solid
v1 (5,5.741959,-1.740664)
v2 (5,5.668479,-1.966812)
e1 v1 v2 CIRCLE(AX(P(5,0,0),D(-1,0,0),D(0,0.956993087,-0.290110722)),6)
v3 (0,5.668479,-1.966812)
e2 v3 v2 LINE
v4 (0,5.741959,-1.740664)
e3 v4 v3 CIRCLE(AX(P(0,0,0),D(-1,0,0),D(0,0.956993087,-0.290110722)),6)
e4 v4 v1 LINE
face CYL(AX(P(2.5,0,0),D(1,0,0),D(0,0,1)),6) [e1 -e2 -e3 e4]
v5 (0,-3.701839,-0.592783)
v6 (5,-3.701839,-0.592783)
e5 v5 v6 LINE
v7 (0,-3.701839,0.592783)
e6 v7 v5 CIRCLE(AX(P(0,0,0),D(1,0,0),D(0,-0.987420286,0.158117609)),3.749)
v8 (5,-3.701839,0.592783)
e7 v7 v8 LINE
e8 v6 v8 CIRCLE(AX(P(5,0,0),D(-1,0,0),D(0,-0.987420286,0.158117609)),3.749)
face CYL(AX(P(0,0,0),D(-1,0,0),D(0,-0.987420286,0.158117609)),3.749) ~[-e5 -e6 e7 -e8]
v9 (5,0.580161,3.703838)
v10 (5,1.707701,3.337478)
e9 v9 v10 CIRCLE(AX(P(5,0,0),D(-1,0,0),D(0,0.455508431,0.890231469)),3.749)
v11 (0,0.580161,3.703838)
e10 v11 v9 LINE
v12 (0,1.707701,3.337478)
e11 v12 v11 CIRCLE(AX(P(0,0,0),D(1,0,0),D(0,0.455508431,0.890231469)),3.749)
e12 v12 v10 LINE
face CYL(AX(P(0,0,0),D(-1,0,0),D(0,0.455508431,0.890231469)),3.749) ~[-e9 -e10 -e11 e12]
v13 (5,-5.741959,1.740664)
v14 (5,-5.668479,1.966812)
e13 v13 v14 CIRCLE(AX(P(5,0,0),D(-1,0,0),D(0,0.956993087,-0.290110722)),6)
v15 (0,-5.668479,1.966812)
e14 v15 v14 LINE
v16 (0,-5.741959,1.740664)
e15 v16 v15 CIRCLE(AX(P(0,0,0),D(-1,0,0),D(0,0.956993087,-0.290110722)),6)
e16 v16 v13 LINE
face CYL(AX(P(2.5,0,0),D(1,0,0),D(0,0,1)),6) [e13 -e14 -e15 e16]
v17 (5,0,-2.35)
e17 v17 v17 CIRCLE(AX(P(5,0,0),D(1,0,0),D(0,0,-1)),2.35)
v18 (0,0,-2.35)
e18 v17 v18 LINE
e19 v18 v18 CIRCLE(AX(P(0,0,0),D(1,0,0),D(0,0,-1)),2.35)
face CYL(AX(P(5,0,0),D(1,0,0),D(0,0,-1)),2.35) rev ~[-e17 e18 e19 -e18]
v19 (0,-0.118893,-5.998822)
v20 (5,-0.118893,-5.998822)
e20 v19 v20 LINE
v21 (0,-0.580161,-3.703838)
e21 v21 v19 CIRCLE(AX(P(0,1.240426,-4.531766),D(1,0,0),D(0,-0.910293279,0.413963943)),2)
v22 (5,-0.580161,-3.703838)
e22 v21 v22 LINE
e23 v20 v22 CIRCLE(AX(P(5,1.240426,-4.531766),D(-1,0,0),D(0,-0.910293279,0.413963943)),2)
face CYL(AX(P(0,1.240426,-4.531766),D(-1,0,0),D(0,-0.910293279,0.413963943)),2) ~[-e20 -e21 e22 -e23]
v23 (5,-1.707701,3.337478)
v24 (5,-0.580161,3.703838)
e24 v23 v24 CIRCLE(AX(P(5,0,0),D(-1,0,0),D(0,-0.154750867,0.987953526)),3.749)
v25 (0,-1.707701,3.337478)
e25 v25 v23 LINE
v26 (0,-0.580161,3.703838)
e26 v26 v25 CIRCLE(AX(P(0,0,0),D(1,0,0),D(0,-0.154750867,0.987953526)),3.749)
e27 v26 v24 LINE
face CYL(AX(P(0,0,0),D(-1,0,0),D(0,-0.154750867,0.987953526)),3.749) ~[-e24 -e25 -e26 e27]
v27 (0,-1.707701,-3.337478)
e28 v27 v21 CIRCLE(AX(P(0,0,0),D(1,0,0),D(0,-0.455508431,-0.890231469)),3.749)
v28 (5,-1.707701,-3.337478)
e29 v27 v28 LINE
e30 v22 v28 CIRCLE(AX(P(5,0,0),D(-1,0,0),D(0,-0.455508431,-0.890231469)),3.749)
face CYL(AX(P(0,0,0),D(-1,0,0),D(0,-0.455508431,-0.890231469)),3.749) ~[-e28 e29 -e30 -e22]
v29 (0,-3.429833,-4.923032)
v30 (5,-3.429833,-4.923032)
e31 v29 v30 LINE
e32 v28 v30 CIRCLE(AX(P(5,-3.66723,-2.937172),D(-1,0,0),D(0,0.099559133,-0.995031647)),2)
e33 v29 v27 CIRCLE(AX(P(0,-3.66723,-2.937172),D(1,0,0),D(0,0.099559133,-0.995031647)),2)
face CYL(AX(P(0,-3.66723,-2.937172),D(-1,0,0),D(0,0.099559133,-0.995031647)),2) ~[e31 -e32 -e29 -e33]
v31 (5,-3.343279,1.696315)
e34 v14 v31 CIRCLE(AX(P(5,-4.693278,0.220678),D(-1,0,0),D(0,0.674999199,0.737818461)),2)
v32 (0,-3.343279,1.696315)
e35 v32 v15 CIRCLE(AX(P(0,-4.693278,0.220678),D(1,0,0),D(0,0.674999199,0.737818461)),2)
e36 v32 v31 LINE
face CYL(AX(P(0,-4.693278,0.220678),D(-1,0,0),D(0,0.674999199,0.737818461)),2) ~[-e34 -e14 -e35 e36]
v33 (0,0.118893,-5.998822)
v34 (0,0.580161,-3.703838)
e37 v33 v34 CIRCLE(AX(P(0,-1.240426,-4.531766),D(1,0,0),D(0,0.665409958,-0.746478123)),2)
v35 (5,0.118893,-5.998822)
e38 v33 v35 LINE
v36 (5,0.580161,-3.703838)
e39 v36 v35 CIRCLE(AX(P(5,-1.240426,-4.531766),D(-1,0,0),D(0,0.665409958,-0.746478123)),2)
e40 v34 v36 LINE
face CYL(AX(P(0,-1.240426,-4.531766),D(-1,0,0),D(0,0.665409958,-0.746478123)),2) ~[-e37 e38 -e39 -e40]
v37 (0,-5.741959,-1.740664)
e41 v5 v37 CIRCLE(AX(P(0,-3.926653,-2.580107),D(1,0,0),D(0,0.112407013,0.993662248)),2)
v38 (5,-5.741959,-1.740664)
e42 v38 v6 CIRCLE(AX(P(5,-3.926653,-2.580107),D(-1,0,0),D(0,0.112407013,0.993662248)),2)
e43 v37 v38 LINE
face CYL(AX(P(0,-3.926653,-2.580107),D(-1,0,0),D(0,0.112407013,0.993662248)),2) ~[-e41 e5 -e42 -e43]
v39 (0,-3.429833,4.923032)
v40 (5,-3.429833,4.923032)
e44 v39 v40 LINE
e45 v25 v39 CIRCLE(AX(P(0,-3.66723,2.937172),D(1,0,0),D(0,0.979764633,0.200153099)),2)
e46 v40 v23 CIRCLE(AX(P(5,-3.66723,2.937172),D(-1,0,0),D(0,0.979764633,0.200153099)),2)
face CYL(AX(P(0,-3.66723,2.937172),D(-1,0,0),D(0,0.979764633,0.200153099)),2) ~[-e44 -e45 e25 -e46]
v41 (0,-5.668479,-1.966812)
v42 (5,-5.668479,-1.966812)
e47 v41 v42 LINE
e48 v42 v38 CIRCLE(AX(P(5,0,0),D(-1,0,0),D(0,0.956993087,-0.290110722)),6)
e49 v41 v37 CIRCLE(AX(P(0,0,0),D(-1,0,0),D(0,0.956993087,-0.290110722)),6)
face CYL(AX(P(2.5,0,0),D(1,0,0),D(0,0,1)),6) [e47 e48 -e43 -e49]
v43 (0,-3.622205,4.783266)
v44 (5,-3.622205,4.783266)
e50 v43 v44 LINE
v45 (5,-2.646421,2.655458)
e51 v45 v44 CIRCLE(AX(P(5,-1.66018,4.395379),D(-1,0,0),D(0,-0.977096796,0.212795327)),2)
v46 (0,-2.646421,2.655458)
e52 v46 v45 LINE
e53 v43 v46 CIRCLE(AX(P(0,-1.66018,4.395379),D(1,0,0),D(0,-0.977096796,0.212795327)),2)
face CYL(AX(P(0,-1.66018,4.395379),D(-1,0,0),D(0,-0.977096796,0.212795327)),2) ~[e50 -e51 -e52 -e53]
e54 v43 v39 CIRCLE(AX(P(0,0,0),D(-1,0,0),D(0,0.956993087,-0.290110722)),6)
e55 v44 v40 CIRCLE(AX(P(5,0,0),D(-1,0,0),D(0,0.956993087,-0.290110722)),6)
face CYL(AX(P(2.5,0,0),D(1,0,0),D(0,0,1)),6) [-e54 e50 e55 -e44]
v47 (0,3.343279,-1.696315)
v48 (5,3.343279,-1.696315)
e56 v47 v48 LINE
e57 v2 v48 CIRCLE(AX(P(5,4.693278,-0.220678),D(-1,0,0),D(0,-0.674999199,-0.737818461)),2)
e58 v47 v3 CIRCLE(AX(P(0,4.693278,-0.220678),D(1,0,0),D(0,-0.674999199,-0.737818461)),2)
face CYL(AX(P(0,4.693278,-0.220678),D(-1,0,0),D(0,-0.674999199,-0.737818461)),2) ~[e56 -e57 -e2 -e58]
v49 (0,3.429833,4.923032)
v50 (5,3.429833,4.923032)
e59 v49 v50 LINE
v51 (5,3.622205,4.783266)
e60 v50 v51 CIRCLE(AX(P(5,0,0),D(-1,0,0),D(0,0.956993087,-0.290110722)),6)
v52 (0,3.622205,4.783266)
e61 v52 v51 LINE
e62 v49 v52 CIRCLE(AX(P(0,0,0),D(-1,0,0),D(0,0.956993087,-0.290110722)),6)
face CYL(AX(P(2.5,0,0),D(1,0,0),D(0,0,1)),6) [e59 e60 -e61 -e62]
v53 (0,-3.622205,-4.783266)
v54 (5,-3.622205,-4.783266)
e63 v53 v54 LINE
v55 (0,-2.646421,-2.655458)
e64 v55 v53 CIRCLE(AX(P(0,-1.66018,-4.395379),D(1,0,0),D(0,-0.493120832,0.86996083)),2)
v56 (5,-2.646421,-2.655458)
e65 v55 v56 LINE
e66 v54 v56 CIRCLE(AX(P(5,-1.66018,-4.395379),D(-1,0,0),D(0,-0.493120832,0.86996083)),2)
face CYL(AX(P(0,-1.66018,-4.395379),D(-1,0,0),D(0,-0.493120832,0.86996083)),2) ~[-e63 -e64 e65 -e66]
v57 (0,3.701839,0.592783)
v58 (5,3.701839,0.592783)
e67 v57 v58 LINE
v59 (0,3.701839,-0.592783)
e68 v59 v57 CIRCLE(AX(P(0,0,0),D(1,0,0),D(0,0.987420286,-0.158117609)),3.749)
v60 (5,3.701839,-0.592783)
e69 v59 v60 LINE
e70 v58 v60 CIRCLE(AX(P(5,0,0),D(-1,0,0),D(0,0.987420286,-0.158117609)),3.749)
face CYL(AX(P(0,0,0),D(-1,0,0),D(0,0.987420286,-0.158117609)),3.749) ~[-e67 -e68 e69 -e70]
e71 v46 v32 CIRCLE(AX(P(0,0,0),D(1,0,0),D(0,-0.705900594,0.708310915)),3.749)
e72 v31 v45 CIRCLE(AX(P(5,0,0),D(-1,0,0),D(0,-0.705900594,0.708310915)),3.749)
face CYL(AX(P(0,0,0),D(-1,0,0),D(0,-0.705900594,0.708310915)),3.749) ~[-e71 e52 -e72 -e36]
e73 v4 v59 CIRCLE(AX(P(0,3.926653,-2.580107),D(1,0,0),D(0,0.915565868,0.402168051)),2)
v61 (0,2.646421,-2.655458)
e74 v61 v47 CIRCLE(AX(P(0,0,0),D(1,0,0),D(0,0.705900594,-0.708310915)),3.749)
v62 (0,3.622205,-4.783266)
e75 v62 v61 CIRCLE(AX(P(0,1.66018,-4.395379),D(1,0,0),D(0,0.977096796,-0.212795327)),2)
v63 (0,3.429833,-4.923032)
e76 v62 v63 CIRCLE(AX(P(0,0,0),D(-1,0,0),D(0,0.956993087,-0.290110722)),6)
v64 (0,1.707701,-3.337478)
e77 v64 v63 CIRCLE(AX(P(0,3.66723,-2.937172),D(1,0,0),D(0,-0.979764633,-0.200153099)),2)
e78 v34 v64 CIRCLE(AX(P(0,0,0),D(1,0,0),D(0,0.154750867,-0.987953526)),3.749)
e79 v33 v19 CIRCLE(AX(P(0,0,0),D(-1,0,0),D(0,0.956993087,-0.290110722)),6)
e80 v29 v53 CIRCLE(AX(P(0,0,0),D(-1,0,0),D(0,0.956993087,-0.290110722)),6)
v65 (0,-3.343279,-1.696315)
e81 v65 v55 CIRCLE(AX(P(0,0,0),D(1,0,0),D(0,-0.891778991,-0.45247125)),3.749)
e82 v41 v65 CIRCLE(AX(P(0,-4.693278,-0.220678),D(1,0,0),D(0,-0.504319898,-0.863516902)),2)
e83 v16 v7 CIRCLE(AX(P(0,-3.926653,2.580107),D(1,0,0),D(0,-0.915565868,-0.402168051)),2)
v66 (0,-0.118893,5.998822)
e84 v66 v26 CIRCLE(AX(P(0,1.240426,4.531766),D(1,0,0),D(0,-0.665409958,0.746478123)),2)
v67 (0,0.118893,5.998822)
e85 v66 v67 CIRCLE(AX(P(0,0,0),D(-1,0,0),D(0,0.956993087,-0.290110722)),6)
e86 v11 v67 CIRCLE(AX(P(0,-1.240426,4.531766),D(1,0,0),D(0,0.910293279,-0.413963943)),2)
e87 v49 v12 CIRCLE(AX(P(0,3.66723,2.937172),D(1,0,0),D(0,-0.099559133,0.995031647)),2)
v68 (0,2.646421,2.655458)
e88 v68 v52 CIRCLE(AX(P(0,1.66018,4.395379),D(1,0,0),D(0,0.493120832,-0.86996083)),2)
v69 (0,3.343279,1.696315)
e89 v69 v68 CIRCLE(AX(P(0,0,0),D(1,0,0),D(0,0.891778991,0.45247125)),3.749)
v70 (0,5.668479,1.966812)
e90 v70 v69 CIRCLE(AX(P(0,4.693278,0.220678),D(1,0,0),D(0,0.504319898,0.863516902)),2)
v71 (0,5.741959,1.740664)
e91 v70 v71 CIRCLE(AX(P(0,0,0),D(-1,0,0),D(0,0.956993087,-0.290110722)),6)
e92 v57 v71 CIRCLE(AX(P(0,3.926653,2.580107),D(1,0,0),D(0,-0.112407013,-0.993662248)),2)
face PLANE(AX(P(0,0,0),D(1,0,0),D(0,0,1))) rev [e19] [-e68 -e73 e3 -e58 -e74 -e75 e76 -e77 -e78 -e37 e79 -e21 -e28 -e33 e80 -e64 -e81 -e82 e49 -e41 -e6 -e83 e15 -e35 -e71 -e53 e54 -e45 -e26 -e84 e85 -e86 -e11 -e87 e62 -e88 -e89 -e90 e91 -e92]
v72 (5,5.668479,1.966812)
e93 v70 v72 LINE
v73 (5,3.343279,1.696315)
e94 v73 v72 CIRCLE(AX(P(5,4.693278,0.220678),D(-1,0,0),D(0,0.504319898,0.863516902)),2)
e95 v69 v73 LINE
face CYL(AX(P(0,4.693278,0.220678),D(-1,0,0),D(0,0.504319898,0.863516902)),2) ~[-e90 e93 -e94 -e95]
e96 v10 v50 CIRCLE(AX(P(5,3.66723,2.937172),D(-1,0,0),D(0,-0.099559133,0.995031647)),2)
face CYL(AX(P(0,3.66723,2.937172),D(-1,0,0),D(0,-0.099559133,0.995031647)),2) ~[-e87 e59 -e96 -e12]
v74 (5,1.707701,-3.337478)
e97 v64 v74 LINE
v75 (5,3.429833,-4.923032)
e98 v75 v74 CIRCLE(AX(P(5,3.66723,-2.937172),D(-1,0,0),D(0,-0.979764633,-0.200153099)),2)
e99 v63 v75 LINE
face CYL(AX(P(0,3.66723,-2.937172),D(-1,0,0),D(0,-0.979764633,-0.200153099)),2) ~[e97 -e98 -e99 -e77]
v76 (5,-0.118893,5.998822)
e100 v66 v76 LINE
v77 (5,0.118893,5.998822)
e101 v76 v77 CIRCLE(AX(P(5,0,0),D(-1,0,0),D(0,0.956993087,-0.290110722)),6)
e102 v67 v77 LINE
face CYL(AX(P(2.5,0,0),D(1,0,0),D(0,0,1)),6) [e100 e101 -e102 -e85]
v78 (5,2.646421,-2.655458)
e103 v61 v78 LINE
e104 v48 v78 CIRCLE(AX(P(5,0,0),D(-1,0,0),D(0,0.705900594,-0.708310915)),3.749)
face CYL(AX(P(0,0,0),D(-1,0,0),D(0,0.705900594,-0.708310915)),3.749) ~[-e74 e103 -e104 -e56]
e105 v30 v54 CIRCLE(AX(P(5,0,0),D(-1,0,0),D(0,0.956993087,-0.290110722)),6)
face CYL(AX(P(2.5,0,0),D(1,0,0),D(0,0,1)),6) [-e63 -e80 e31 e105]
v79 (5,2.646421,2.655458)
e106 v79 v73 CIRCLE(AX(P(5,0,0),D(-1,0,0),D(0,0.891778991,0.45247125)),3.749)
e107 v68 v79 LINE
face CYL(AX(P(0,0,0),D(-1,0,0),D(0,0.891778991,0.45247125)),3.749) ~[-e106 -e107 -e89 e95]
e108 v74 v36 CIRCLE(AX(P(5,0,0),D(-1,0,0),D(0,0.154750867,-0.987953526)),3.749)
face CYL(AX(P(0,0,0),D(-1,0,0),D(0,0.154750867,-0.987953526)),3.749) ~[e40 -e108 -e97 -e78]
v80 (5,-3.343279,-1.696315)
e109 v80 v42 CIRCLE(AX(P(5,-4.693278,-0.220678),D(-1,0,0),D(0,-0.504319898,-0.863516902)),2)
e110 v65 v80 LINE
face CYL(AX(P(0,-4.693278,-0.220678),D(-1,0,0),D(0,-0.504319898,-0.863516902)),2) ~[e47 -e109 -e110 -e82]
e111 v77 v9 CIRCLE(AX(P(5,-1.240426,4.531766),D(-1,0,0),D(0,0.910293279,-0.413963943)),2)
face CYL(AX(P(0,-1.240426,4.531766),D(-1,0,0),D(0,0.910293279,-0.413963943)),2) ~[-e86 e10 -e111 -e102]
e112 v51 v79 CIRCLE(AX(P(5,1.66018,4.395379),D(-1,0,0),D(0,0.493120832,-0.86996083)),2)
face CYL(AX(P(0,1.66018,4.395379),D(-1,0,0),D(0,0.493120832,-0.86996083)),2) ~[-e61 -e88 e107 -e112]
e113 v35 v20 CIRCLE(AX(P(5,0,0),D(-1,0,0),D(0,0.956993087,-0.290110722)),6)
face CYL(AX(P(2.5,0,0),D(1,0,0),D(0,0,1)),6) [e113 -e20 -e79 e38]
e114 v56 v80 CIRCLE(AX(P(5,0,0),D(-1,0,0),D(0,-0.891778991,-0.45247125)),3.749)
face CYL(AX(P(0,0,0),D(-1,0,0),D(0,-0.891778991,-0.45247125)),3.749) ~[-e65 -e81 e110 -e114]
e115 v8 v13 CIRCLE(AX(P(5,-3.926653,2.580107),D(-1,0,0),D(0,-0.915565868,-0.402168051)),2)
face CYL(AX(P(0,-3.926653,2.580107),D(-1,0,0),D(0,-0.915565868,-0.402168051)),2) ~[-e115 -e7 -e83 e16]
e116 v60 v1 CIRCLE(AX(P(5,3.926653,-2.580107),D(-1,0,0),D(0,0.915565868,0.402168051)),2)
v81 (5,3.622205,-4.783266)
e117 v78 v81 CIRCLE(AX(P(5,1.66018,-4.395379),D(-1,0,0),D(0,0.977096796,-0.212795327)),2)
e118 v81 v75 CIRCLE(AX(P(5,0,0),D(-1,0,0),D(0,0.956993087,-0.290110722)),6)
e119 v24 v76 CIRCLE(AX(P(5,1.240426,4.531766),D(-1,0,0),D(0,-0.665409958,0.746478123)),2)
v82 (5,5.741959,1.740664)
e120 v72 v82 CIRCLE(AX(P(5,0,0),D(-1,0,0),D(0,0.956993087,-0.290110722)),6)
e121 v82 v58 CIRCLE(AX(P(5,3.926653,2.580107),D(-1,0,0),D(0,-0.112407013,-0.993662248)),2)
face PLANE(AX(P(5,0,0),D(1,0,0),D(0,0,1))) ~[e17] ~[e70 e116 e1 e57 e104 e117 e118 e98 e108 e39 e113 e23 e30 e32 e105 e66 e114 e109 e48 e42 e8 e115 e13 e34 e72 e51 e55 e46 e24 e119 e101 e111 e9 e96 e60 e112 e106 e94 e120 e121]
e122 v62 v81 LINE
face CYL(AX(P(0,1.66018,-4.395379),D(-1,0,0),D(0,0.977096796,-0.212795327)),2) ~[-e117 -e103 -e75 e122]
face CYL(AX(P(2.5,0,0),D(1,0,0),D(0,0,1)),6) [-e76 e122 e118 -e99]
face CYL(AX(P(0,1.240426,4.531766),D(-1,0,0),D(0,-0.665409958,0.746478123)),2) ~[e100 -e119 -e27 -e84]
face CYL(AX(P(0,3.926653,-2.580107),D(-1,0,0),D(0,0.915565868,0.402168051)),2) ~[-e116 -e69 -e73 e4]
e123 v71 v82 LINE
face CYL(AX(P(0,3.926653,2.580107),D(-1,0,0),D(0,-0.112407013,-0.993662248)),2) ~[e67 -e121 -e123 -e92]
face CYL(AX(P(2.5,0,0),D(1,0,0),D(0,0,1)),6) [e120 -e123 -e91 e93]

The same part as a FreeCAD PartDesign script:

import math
import FreeCAD as App
import Part
import Sketcher
Q = App.Units.Quantity


def add_polygon(sketch, points):
    """Adds a closed chain of lines whose ends are joined by coincident constraints."""
    first, n = sketch.GeometryCount, len(points)
    for a, b in zip(points, points[1:] + points[:1]):
        sketch.addGeometry(Part.LineSegment(App.Vector(*a, 0), App.Vector(*b, 0)), False)
    for i in range(n):
        sketch.addConstraint(Sketcher.Constraint("Coincident", first + i, 2, first + (i + 1) % n, 1))

doc = App.newDocument("Part")
body = doc.addObject("PartDesign::Body", "Body")

sketch1 = body.newObject("Sketcher::SketchObject", "Sketch")
sketch1.AttachmentSupport = (doc.getObject("XZ_Plane"), [""])
sketch1.MapMode = "FlatFace"
add_polygon(sketch1, [(0, -6), (0, 0), (5, 0), (5, -6)])
sketch1.addConstraint([
    Sketcher.Constraint("Vertical", 0),
    Sketcher.Constraint("Horizontal", 1),
    Sketcher.Constraint("Vertical", 2),
    Sketcher.Constraint("Horizontal", 3),
    Sketcher.Constraint("Coincident", 0, 2, -1, 1),
    Sketcher.Constraint("DistanceX", 1, 1, 1, 2, Q("5 mm")),
    Sketcher.Constraint("DistanceY", 0, 1, 0, 2, Q("6 mm")),
])
revolution = body.newObject("PartDesign::Revolution", "Revolution")
revolution.Profile = sketch1
revolution.ReferenceAxis = (sketch1, ["H_Axis"])
revolution.Angle = 360

sketch2 = body.newObject("Sketcher::SketchObject", "Sketch001")
sketch2.AttachmentSupport = (doc.getObject("YZ_Plane"), [""])
sketch2.MapMode = "FlatFace"
sketch2.addGeometry([
    Part.ArcOfCircle(Part.Circle(App.Vector(0, 0, 0), App.Vector(0, 0, 1), 3.749), math.radians(-9.097652), math.radians(9.097652)),
    Part.ArcOfCircle(Part.Circle(App.Vector(3.926653, -2.580107, 0), App.Vector(0, 0, 1), 2), math.radians(23.713784), math.radians(96.454088)),
    Part.ArcOfCircle(Part.Circle(App.Vector(0, 0, 0), App.Vector(0, 0, 1), 6.0254), math.radians(-17.140404), math.radians(17.140404)),
    Part.ArcOfCircle(Part.Circle(App.Vector(3.926653, 2.580107, 0), App.Vector(0, 0, 1), 2), math.radians(-96.454088), math.radians(-23.713784)),
], False)
sketch2.addConstraint([
    Sketcher.Constraint("Coincident", 0, 1, 1, 2),
    Sketcher.Constraint("Coincident", 1, 1, 2, 1),
    Sketcher.Constraint("Coincident", 2, 2, 3, 2),
    Sketcher.Constraint("Coincident", 3, 1, 0, 2),
    Sketcher.Constraint("Coincident", 0, 3, -1, 1),
    Sketcher.Constraint("Coincident", 2, 3, -1, 1),
    Sketcher.Constraint("Equal", 1, 3),
    Sketcher.Constraint("Symmetric", 1, 3, 3, 3, -1),
    Sketcher.Constraint("Radius", 1, Q("2 mm")),
    Sketcher.Constraint("Radius", 0, Q("3.749 mm")),
    Sketcher.Constraint("Radius", 2, Q("6.0254 mm")),
    Sketcher.Constraint("DistanceX", -1, 1, 0, 1, Q("3.701839 mm")),
    Sketcher.Constraint("DistanceY", 1, 1, -1, 1, Q("1.775771 mm")),
])
pocket1 = body.newObject("PartDesign::Pocket", "Pocket")
pocket1.Profile = sketch2
pocket1.Type = "ThroughAll"
pocket1.Reversed = True
doc.recompute()

polarpattern = body.newObject("PartDesign::PolarPattern", "PolarPattern")
polarpattern.Originals = [pocket1]
polarpattern.Axis = (doc.getObject("X_Axis"), [""])
polarpattern.Angle = 360
polarpattern.Occurrences = 10
body.Tip = polarpattern

sketch3 = body.newObject("Sketcher::SketchObject", "Sketch002")
sketch3.AttachmentSupport = (doc.getObject("YZ_Plane"), [""])
sketch3.MapMode = "FlatFace"
sketch3.addGeometry(Part.Circle(App.Vector(0, 0, 0), App.Vector(0, 0, 1), 0.4), False)
sketch3.addConstraint([
    Sketcher.Constraint("Coincident", 0, 3, -1, 1),
    Sketcher.Constraint("Diameter", 0, Q("0.8 mm")),
])
pocket2 = body.newObject("PartDesign::Pocket", "Pocket001")
pocket2.Profile = sketch3
pocket2.Length = 100.000102
pocket2.Midplane = True

sketch4 = body.newObject("Sketcher::SketchObject", "Sketch003")
sketch4.AttachmentSupport = (doc.getObject("YZ_Plane"), [""])
sketch4.MapMode = "FlatFace"
sketch4.AttachmentOffset = App.Placement(App.Vector(0, 0, 5), App.Rotation())
sketch4.addGeometry(Part.Circle(App.Vector(0, 0, 0), App.Vector(0, 0, 1), 2.35), False)
sketch4.addConstraint([
    Sketcher.Constraint("Coincident", 0, 3, -1, 1),
    Sketcher.Constraint("Diameter", 0, Q("4.7 mm")),
])
pocket3 = body.newObject("PartDesign::Pocket", "Pocket002")
pocket3.Profile = sketch4
pocket3.Type = "ThroughAll"

doc.recompute()
